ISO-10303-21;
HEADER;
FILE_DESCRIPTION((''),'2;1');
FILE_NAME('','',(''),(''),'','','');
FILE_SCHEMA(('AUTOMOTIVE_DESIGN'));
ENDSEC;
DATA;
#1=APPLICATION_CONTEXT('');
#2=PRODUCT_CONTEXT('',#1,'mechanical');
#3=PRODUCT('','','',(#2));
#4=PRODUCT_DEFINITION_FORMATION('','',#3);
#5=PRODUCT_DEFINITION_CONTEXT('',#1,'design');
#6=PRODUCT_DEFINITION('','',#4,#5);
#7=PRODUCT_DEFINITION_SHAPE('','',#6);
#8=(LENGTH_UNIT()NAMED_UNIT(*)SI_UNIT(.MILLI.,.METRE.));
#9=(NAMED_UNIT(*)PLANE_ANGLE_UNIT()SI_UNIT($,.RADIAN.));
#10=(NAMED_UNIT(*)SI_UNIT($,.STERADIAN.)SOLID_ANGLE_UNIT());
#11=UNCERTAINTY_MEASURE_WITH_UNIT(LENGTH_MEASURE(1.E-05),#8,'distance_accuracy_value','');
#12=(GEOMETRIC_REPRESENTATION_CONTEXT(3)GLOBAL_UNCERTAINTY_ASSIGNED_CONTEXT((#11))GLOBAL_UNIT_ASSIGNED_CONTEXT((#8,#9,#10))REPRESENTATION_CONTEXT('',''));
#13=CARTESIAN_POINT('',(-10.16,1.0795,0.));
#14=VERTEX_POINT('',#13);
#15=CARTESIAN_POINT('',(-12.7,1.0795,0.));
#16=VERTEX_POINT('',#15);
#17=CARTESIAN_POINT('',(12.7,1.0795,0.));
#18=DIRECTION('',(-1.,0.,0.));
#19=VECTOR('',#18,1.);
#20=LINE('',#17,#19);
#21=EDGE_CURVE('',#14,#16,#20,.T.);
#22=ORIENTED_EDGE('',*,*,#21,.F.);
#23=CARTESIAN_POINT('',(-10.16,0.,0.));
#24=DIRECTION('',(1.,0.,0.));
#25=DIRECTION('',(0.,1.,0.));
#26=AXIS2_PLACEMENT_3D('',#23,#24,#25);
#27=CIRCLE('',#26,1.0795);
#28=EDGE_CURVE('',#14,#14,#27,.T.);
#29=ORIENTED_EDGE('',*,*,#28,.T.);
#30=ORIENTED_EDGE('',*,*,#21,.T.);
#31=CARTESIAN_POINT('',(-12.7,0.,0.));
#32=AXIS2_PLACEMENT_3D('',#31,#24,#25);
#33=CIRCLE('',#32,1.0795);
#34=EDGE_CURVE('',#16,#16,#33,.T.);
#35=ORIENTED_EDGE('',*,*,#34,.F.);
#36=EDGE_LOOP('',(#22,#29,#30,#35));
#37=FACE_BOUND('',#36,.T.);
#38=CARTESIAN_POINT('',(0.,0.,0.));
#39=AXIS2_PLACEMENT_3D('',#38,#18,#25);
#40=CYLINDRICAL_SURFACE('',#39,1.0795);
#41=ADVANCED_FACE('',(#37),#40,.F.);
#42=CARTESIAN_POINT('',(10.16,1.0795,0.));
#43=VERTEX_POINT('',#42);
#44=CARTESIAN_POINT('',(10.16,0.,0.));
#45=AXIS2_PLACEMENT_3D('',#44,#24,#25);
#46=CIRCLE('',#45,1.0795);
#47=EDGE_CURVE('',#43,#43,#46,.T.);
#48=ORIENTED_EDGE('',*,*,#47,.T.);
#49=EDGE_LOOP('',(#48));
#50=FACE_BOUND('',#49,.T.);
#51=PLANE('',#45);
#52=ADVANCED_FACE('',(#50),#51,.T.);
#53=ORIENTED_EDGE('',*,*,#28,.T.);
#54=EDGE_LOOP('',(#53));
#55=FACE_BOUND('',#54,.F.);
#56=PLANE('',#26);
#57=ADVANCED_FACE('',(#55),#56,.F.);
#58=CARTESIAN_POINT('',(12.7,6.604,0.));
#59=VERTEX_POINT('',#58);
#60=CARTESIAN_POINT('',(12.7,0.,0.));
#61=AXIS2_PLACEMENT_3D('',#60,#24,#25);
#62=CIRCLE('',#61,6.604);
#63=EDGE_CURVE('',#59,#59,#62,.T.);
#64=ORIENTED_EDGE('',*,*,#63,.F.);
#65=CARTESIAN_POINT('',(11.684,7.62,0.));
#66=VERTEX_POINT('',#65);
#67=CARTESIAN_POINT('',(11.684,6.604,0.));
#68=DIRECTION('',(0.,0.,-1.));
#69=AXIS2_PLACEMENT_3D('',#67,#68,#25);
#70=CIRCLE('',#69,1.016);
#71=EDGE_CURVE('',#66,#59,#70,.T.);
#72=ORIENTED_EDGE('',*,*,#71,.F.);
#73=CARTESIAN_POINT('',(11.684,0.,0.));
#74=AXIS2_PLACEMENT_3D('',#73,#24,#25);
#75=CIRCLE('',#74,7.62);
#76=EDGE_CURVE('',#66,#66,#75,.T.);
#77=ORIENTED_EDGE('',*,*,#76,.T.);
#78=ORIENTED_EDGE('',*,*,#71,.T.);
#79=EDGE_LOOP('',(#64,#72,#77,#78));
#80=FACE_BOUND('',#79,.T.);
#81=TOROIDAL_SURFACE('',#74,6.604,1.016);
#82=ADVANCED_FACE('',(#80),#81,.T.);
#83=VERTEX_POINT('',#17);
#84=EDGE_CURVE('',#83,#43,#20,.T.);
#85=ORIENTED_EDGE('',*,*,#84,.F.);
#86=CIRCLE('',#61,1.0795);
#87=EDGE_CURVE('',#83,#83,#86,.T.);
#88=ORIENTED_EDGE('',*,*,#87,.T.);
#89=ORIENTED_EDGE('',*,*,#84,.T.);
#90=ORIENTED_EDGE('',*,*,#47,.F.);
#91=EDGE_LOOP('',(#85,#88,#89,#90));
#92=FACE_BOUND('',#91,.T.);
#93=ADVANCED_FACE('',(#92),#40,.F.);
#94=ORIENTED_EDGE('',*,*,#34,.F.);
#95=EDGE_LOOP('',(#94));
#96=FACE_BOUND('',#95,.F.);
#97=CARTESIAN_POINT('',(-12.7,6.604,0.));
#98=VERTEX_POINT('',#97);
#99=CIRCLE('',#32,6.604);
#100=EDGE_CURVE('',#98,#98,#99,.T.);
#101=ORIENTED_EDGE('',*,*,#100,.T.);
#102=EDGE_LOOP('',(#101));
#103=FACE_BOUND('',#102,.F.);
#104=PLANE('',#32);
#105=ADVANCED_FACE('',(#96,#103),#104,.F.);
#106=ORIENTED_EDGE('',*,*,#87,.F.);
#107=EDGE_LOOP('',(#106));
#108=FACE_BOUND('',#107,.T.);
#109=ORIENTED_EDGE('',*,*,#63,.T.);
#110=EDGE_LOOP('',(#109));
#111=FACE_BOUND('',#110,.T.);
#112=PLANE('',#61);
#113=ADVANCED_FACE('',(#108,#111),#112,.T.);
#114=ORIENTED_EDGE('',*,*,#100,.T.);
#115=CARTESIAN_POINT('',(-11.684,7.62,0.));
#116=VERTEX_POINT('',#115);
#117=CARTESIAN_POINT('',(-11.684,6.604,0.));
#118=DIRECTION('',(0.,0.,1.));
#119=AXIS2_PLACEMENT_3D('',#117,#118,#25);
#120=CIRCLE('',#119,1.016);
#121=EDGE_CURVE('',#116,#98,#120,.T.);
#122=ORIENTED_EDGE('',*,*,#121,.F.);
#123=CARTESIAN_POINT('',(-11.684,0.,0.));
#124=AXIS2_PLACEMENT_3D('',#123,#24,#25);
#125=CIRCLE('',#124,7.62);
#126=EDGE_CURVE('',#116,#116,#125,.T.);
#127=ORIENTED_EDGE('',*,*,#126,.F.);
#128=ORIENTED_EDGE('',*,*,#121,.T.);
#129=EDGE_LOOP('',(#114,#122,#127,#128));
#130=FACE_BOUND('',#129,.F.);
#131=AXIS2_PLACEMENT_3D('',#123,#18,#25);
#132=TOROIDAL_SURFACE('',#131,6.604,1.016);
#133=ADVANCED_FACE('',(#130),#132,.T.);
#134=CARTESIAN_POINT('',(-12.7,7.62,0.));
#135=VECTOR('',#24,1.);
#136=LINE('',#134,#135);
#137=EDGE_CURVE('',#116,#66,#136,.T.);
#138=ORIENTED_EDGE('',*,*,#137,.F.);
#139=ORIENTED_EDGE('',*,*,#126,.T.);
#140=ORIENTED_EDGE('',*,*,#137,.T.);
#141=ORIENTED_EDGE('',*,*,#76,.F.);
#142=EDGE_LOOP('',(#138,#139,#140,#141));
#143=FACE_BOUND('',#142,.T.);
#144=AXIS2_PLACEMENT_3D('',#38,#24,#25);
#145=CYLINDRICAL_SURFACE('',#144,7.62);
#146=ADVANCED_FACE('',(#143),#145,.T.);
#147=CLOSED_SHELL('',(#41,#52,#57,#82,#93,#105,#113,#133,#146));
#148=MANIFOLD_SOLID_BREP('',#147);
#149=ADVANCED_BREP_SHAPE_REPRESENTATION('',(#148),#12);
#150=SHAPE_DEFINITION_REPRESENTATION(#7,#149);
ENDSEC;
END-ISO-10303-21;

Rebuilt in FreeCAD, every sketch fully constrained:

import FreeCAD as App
import Part
import Sketcher
from FreeCAD import Vector
Q = App.Units.Quantity


def edges_at(feature, points):
    """Names of the edges that pass closest to the given points."""
    edges = feature.Shape.Edges
    near = lambda p: min(range(len(edges)), key=lambda i: edges[i].distToShape(Part.Vertex(*p))[0])
    return sorted({f"Edge{near(p) + 1}" for p in points})

doc = App.newDocument("Part")
body = doc.addObject("PartDesign::Body", "Body")

# Sketch on YZ plane
sketch1 = body.newObject("Sketcher::SketchObject", "Sketch")
sketch1.AttachmentSupport = (doc.getObject("YZ_Plane"), [""])
sketch1.MapMode = "FlatFace"
sketch1.addGeometry(Part.Circle(Vector(0, 0, 0), Vector(0, 0, 1), 7.6), False)
sketch1.addGeometry(Part.Circle(Vector(0, 0, 0), Vector(0, 0, 1), 1.1), False)
sketch1.addConstraint(Sketcher.Constraint("Coincident", 0, 3, -1, 1))
sketch1.addConstraint(Sketcher.Constraint("Coincident", 1, 3, -1, 1))
sketch1.addConstraint(Sketcher.Constraint("Diameter", 0, Q("0.6 in")))
sketch1.addConstraint(Sketcher.Constraint("Diameter", 1, Q("0.085 in")))
pad1 = body.newObject("PartDesign::Pad", "Pad")
pad1.Profile = sketch1
pad1.Length = Q("1 in")
pad1.Midplane = True

# Sketch on YZ plane
sketch2 = body.newObject("Sketcher::SketchObject", "Sketch001")
sketch2.AttachmentSupport = (doc.getObject("YZ_Plane"), [""])
sketch2.MapMode = "FlatFace"
sketch2.addGeometry(Part.Circle(Vector(0, 0, 0), Vector(0, 0, 1), 1.1), False)
sketch2.addConstraint(Sketcher.Constraint("Coincident", 0, 3, -1, 1))
sketch2.addConstraint(Sketcher.Constraint("Diameter", 0, Q("0.085 in")))
pad2 = body.newObject("PartDesign::Pad", "Pad001")
pad2.Profile = sketch2
pad2.Length = Q("0.8 in")
pad2.Midplane = True
doc.recompute()

fillet = body.newObject("PartDesign::Fillet", "Fillet")
fillet.Base = (pad2, edges_at(pad2, [(12.7, -7.62, 0), (-12.7, -7.62, 0)]))
fillet.Radius = Q("0.04 in")

doc.recompute()
